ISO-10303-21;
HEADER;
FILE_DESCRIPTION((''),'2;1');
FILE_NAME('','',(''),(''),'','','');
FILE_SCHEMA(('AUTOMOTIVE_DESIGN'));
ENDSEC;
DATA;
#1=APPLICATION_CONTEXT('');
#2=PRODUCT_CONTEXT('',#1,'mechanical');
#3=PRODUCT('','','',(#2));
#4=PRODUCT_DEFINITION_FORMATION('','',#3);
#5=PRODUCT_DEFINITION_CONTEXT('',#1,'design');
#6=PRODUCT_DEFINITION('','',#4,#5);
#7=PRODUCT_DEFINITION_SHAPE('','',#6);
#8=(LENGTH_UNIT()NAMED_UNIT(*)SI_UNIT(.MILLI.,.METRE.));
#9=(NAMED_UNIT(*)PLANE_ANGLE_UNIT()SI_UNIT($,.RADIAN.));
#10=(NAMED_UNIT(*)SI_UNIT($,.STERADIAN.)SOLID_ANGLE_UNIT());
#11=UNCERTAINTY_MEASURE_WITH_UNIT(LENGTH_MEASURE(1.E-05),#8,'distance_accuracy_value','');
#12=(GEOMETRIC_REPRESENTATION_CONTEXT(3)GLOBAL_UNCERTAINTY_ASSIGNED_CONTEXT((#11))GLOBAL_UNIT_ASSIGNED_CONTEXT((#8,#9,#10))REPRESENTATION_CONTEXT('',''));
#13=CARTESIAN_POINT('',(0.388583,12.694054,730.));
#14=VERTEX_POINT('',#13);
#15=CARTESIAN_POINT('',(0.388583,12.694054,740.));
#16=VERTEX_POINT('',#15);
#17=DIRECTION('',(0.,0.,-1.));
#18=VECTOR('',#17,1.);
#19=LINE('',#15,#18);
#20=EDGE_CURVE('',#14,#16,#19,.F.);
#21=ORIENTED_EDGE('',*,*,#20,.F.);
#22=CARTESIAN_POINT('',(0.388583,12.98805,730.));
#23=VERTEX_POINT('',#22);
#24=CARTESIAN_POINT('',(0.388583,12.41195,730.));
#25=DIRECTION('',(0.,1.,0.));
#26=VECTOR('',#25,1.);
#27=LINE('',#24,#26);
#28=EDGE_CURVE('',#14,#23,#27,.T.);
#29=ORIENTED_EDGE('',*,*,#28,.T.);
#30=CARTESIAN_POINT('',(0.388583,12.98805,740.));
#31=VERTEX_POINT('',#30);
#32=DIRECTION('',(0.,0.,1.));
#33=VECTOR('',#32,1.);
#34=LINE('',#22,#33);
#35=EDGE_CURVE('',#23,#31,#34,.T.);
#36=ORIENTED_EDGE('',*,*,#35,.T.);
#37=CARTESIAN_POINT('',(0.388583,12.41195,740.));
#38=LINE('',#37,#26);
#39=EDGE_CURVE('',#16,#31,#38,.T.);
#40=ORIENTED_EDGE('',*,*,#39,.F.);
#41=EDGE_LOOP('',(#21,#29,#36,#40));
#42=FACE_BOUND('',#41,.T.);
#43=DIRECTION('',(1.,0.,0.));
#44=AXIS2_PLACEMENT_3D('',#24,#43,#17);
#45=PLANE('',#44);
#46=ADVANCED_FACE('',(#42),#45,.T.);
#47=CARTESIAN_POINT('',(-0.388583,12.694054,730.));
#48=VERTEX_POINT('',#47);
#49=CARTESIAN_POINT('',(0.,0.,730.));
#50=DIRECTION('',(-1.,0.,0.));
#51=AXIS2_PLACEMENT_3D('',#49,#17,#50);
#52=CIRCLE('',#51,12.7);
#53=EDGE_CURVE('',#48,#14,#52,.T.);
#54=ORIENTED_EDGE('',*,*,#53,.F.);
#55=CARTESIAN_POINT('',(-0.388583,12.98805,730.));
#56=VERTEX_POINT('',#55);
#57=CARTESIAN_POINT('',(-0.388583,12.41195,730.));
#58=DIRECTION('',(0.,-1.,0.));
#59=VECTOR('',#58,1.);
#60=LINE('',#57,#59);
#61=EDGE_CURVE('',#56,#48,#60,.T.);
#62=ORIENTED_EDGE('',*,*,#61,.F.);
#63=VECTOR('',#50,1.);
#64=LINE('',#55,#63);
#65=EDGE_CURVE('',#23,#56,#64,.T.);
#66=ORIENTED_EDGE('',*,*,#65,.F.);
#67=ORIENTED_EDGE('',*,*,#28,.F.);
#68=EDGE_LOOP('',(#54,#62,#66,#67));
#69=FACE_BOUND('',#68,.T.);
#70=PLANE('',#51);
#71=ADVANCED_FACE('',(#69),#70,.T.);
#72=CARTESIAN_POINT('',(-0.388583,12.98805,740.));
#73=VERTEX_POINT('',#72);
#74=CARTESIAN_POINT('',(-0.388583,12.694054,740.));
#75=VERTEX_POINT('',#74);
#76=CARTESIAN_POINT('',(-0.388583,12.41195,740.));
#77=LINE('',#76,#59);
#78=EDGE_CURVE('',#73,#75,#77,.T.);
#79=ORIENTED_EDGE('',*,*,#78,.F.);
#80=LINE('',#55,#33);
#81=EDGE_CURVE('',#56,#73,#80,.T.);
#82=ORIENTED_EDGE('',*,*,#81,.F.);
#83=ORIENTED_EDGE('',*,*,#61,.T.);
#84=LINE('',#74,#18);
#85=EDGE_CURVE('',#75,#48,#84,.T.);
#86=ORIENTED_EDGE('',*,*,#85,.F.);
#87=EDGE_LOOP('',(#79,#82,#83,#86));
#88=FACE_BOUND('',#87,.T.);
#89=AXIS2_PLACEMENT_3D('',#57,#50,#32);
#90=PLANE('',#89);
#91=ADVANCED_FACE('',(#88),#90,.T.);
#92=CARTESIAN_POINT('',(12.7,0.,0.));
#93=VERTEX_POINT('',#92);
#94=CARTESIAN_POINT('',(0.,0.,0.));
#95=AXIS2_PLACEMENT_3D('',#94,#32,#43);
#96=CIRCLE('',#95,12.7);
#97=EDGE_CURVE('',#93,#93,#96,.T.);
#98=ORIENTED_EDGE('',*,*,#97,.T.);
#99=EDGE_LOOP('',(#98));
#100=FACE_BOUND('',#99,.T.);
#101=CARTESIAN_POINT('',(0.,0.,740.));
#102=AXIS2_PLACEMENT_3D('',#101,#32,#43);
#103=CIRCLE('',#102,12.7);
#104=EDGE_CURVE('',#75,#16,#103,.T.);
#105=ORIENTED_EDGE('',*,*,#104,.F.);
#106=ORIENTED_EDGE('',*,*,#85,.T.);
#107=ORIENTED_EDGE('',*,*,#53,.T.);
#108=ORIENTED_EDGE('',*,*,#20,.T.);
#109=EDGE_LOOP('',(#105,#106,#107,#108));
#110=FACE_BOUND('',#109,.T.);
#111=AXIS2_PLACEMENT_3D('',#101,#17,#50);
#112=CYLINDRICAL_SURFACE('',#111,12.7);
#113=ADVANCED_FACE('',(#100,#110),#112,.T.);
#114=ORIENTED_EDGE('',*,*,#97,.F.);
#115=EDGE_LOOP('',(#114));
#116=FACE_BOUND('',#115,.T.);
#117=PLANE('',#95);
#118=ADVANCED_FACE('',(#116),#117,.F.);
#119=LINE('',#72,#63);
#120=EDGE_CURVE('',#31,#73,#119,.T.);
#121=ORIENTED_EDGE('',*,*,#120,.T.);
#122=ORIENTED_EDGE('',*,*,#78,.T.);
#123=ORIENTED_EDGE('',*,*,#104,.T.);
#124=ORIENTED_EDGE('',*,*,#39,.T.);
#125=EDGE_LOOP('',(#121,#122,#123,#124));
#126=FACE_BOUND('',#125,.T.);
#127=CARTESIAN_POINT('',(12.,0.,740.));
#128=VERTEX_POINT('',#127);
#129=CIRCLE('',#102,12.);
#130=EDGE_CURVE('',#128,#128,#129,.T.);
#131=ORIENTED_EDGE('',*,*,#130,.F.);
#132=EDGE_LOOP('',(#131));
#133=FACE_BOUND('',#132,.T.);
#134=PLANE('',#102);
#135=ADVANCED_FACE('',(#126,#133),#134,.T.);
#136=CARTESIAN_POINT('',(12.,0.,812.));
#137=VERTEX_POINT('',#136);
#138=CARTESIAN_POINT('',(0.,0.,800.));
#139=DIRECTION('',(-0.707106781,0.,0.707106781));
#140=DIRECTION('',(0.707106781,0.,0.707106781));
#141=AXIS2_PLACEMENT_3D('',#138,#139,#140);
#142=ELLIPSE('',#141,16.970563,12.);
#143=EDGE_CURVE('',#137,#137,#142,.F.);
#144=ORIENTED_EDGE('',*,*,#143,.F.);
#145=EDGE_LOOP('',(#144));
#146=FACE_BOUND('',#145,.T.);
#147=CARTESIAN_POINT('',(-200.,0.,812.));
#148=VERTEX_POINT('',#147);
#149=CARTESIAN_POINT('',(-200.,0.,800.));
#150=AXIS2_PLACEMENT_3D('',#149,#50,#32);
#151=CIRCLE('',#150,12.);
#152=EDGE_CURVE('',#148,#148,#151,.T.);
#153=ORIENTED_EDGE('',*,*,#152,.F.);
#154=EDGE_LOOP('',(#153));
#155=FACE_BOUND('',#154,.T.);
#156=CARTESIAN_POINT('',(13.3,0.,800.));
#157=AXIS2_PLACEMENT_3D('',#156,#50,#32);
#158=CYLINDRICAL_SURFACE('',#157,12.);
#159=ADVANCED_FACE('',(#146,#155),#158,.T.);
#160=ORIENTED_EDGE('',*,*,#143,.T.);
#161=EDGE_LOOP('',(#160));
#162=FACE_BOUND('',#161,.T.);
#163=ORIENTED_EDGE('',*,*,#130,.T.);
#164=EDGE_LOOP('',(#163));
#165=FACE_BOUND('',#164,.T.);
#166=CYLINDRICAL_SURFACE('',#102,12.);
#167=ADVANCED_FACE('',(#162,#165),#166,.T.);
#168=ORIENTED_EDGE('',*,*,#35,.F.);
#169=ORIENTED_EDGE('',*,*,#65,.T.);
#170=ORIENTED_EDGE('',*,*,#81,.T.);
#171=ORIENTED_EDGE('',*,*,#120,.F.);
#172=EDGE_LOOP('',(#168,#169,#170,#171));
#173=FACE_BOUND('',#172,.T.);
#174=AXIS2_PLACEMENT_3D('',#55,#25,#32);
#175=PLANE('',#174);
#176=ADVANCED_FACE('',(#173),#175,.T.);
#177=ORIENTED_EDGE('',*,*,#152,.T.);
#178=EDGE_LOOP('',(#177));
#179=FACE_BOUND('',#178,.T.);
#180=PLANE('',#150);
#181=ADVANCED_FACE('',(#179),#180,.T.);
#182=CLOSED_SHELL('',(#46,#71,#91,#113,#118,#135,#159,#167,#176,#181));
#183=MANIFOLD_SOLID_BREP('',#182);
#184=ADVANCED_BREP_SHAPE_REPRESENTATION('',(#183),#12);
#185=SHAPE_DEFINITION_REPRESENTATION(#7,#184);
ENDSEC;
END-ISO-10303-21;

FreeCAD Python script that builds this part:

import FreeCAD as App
import Part
import Sketcher

doc = App.newDocument("Part")
body = doc.addObject("PartDesign::Body", "Body")

# Sketch on XY plane
sketch1 = body.newObject("Sketcher::SketchObject", "Sketch")
sketch1.AttachmentSupport = (doc.getObject("XY_Plane"), [""])
sketch1.MapMode = "FlatFace"
sketch1.addGeometry(Part.Circle(App.Vector(0, 0, 0), App.Vector(0, 0, 1), 12.7), False)
sketch1.addConstraint(Sketcher.Constraint("Coincident", 0, 3, -1, 1))
sketch1.addConstraint(Sketcher.Constraint("Diameter", 0, 25.4))
pad1 = body.newObject("PartDesign::Pad", "Pad")
pad1.Profile = sketch1
pad1.Length = 740

# Sketch on XY plane
sketch2 = body.newObject("Sketcher::SketchObject", "Sketch001")
sketch2.AttachmentSupport = (doc.getObject("XY_Plane"), [""])
sketch2.MapMode = "FlatFace"
sketch2.AttachmentOffset = App.Placement(App.Vector(0, 0, 740), App.Rotation())
sketch2.addGeometry(Part.LineSegment(App.Vector(-0.388583, 12.98805, 0), App.Vector(-0.388583, 12.41195, 0)), False)
sketch2.addGeometry(Part.LineSegment(App.Vector(-0.388583, 12.41195, 0), App.Vector(0.388583, 12.41195, 0)), False)
sketch2.addGeometry(Part.LineSegment(App.Vector(0.388583, 12.41195, 0), App.Vector(0.388583, 12.98805, 0)), False)
sketch2.addGeometry(Part.LineSegment(App.Vector(0.388583, 12.98805, 0), App.Vector(-0.388583, 12.98805, 0)), False)
sketch2.addConstraint(Sketcher.Constraint("Coincident", 0, 2, 1, 1))
sketch2.addConstraint(Sketcher.Constraint("Coincident", 1, 2, 2, 1))
sketch2.addConstraint(Sketcher.Constraint("Coincident", 2, 2, 3, 1))
sketch2.addConstraint(Sketcher.Constraint("Coincident", 3, 2, 0, 1))
sketch2.addConstraint(Sketcher.Constraint("Vertical", 0))
sketch2.addConstraint(Sketcher.Constraint("Horizontal", 1))
sketch2.addConstraint(Sketcher.Constraint("Vertical", 2))
sketch2.addConstraint(Sketcher.Constraint("Horizontal", 3))
sketch2.addConstraint(Sketcher.Constraint("DistanceY", 0, 2, 0, 1, 0.5761))
sketch2.addConstraint(Sketcher.Constraint("DistanceX", 1, 1, 1, 2, 0.777166))
sketch2.addConstraint(Sketcher.Constraint("DistanceY", -1, 1, 0, 2, 12.41195))
sketch2.addConstraint(Sketcher.Constraint("DistanceX", 0, 2, -1, 1, 0.388583))
pad2 = body.newObject("PartDesign::Pad", "Pad001")
pad2.Profile = sketch2
pad2.Length = 10
pad2.Reversed = True

# Sketch on XY plane
sketch3 = body.newObject("Sketcher::SketchObject", "Sketch002")
sketch3.AttachmentSupport = (doc.getObject("XY_Plane"), [""])
sketch3.MapMode = "FlatFace"
sketch3.AttachmentOffset = App.Placement(App.Vector(0, 0, 740), App.Rotation())
sketch3.addGeometry(Part.Circle(App.Vector(0, 0, 0), App.Vector(0, 0, 1), 12), False)
sketch3.addConstraint(Sketcher.Constraint("Coincident", 0, 3, -1, 1))
sketch3.addConstraint(Sketcher.Constraint("Diameter", 0, 24.0))

# Sketch on XZ plane
sketch4 = body.newObject("Sketcher::SketchObject", "Sketch003")
sketch4.AttachmentSupport = (doc.getObject("XZ_Plane"), [""])
sketch4.MapMode = "FlatFace"
sketch4.addGeometry(Part.LineSegment(App.Vector(0, 740, 0), App.Vector(0, 800, 0)), False)
sketch4.addGeometry(Part.LineSegment(App.Vector(0, 800, 0), App.Vector(-200, 800, 0)), False)
sketch4.addConstraint(Sketcher.Constraint("Coincident", 0, 2, 1, 1))
sketch4.addConstraint(Sketcher.Constraint("Vertical", 0))
sketch4.addConstraint(Sketcher.Constraint("Horizontal", 1))
sketch4.addConstraint(Sketcher.Constraint("PointOnObject", 0, 1, -2))
sketch4.addConstraint(Sketcher.Constraint("DistanceX", 1, 2, 1, 1, 200.0))
sketch4.addConstraint(Sketcher.Constraint("DistanceY", 0, 1, 0, 2, 60.0))
sketch4.addConstraint(Sketcher.Constraint("DistanceY", -1, 1, 0, 1, 740.0))
doc.recompute()

additivepipe = body.newObject("PartDesign::AdditivePipe", "AdditivePipe")
additivepipe.Profile = sketch3
additivepipe.Spine = (sketch4, ["Edge1", "Edge2"])
additivepipe.Transition = "Right corner"

doc.recompute()
